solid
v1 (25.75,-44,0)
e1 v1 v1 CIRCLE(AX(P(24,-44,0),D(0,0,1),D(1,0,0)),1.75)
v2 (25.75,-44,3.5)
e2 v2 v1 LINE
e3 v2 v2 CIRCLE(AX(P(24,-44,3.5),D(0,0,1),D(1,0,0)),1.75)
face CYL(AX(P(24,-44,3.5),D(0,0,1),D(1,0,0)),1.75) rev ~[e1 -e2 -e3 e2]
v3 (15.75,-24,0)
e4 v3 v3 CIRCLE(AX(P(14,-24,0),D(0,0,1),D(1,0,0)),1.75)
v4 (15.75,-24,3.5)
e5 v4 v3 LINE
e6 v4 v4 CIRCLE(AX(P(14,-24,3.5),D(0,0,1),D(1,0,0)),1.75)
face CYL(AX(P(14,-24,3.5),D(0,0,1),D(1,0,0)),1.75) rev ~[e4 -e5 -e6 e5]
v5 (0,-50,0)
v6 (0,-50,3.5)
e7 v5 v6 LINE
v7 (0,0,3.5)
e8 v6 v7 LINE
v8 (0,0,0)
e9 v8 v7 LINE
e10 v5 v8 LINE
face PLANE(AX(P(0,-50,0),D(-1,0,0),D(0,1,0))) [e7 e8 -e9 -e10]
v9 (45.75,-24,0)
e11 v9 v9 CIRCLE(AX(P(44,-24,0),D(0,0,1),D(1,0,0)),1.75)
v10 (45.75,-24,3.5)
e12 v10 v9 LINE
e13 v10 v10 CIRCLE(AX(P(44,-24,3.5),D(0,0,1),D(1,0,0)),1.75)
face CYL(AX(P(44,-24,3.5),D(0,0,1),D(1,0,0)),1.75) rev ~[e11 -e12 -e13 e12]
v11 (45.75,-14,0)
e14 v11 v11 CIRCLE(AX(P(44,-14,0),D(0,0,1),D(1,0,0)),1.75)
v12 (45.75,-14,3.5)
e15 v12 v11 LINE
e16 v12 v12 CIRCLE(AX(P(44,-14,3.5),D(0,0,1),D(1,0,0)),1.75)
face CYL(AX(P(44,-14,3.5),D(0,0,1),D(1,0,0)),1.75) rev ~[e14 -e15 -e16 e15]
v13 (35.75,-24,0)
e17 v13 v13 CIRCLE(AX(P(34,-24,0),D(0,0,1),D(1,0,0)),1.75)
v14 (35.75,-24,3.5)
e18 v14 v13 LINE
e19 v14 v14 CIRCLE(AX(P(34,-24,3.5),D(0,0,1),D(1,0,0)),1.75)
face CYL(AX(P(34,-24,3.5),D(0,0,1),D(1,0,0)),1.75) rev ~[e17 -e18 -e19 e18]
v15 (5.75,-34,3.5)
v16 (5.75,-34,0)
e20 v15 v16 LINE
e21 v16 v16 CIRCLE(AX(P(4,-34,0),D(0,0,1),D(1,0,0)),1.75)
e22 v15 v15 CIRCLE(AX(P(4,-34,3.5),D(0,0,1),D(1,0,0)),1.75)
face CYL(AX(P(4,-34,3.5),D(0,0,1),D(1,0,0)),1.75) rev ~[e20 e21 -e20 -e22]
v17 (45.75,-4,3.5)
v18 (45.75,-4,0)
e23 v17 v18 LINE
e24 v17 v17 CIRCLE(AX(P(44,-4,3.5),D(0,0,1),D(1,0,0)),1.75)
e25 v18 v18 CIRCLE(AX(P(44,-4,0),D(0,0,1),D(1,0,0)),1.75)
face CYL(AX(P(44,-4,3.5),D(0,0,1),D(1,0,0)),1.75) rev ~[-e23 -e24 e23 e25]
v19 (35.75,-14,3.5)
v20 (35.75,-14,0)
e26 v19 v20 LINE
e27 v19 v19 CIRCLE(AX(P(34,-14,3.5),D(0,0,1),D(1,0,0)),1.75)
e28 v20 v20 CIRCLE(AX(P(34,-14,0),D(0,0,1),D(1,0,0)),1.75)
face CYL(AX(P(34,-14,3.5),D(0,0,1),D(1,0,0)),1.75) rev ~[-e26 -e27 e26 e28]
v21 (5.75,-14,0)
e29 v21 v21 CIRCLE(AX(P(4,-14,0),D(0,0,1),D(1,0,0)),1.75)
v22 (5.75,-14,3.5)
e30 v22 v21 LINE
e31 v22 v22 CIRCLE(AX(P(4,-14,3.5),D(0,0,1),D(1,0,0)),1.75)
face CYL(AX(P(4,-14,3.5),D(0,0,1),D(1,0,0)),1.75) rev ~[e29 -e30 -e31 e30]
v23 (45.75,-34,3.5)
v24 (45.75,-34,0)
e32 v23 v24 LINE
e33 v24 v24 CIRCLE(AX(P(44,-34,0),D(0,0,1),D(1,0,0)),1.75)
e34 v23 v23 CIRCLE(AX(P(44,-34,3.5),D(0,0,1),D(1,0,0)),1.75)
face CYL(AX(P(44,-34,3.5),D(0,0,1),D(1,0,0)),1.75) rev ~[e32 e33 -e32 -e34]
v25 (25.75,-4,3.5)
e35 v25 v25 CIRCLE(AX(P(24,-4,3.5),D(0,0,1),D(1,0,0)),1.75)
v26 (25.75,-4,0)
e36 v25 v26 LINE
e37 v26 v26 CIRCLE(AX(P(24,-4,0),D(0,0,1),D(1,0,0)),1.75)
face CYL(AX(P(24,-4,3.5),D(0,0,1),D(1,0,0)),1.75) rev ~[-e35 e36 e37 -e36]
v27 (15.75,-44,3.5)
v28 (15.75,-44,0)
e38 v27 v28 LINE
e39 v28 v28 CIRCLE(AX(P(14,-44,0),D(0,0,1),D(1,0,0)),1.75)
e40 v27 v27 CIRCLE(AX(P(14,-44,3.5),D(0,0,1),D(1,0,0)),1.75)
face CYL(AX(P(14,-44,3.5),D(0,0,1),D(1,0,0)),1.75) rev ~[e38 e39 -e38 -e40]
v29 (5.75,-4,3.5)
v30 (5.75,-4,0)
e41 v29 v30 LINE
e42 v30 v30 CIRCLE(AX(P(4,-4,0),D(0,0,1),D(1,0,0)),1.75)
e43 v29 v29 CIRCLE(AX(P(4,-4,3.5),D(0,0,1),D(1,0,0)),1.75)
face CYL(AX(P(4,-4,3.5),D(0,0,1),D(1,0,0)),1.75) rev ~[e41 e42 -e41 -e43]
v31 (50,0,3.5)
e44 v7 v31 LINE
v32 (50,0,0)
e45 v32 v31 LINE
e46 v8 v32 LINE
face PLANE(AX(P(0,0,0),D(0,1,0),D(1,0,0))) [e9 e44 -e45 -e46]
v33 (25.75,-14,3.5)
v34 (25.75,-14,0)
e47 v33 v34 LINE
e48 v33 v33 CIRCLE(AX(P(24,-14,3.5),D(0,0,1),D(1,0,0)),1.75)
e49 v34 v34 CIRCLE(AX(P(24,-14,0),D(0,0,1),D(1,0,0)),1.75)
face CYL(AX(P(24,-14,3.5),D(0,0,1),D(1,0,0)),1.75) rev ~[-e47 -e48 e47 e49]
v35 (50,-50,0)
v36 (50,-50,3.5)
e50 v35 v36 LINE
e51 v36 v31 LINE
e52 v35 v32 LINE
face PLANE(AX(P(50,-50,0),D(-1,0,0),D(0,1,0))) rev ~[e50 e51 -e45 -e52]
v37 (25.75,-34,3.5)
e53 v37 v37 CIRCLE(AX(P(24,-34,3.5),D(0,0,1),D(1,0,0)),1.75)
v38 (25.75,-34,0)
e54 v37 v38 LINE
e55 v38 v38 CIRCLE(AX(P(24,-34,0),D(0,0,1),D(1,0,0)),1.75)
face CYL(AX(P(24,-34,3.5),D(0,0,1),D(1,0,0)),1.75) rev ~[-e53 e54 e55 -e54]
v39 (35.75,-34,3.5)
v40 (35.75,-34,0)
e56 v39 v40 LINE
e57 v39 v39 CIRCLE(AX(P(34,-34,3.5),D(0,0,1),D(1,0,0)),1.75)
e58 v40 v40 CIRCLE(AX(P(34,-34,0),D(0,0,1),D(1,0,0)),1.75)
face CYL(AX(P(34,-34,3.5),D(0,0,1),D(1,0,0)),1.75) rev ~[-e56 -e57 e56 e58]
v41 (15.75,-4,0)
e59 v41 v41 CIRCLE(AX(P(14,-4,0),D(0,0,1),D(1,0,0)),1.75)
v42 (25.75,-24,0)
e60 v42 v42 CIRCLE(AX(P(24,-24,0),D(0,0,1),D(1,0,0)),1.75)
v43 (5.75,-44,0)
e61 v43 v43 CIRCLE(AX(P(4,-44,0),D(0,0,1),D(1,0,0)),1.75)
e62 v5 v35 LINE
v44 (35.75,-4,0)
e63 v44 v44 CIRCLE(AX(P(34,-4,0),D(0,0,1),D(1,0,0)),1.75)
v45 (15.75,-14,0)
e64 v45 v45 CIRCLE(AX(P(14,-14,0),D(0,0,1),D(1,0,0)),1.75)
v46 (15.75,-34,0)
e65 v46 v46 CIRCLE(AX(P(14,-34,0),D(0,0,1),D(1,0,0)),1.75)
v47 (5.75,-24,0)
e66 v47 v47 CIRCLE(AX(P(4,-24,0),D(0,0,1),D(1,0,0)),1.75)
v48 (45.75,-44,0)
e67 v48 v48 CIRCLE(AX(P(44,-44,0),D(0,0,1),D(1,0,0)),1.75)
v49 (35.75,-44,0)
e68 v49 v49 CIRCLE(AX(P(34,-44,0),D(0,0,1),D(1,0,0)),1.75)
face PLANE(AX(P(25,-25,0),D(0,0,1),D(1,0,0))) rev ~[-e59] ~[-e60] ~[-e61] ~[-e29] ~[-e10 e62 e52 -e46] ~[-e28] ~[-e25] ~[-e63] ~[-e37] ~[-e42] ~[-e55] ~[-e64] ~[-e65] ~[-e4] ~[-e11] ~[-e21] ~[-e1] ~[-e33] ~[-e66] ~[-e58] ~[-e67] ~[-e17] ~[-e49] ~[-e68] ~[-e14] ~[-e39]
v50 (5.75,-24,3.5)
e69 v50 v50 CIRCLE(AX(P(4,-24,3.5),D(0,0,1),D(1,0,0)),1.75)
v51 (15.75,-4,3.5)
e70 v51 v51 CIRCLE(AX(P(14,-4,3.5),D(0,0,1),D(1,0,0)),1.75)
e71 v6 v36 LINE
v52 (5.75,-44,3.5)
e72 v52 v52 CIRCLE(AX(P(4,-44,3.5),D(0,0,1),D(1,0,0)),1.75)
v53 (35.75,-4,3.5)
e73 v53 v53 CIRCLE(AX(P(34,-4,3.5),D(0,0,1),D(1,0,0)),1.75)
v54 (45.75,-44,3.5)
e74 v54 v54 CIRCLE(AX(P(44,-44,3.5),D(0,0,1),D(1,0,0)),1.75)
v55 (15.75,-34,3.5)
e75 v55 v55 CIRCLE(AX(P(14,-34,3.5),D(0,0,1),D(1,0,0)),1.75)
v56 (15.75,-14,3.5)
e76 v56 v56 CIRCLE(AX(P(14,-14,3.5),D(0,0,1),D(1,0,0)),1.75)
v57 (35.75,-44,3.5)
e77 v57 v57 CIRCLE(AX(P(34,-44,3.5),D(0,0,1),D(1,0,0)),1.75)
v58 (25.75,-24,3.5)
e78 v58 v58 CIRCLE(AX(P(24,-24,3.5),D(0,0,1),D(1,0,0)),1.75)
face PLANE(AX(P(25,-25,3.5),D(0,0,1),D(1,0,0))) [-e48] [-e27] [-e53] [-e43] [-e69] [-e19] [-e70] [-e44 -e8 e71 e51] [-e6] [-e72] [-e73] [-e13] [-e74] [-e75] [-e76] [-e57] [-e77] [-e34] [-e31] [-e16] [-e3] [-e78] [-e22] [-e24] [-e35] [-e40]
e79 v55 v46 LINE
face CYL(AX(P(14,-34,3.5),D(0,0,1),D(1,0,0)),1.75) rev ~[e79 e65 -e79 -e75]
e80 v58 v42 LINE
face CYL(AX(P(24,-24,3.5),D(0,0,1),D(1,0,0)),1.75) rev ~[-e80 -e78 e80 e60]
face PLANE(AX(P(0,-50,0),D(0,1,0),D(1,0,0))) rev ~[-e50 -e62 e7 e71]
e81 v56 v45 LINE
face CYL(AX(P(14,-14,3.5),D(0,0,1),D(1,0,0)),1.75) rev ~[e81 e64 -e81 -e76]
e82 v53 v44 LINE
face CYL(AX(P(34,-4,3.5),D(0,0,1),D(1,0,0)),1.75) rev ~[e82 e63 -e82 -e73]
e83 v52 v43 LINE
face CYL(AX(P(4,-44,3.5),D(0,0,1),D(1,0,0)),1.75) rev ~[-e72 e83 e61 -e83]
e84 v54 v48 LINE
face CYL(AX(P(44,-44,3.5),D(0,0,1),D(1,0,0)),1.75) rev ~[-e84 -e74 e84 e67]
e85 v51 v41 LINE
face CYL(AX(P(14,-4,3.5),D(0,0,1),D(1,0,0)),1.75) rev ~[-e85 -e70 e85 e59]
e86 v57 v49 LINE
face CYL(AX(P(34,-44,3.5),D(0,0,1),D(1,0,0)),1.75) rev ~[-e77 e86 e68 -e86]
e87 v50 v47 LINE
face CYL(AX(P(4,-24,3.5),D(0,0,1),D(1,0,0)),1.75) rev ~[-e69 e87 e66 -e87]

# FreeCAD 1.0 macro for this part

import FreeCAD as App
import Part
import Sketcher

V = App.Vector


def add_polygon(sketch, points):
    """Adds a closed chain of lines whose ends are joined by coincident constraints."""
    first, n = sketch.GeometryCount, len(points)
    for a, b in zip(points, points[1:] + points[:1]):
        sketch.addGeometry(Part.LineSegment(App.Vector(*a, 0), App.Vector(*b, 0)), False)
    for i in range(n):
        sketch.addConstraint(Sketcher.Constraint("Coincident", first + i, 2, first + (i + 1) % n, 1))

doc = App.newDocument("Part")
body = doc.addObject("PartDesign::Body", "Body")

# Sketch on XY plane
sketch1 = doc.addObject("Sketcher::SketchObject", "Sketch")
body.addObject(sketch1)
sketch1.AttachmentSupport = (doc.XY_Plane, [""])
sketch1.MapMode = "FlatFace"
add_polygon(sketch1, [(0, 0), (0, -50), (50, -50), (50, 0)])  # lines 0-3
sketch1.addConstraint(Sketcher.Constraint("Vertical", 0))
sketch1.addConstraint(Sketcher.Constraint("Horizontal", 1))
sketch1.addConstraint(Sketcher.Constraint("Vertical", 2))
sketch1.addConstraint(Sketcher.Constraint("Horizontal", 3))
sketch1.addConstraint(Sketcher.Constraint("Coincident", 3, 2, -1, 1))
sketch1.addConstraint(Sketcher.Constraint("Equal", 3, 0))
sketch1.addConstraint(Sketcher.Constraint("DistanceX", 1, 1, 1, 2, 50.0))
pad1 = doc.addObject("PartDesign::Pad", "Pad")
body.addObject(pad1)
pad1.Profile = sketch1
pad1.Length = 3.5

# Sketch on XY plane
sketch2 = doc.addObject("Sketcher::SketchObject", "Sketch001")
body.addObject(sketch2)
sketch2.AttachmentSupport = (doc.XY_Plane, [""])
sketch2.MapMode = "FlatFace"
sketch2.AttachmentOffset = App.Placement(V(0, 0, 3.5), App.Rotation())
sketch2.addGeometry(Part.Circle(V(4, -4, 0), V(0, 0, 1), 1.8), False)
sketch2.addGeometry(Part.Circle(V(14, -4, 0), V(0, 0, 1), 1.8), False)
sketch2.addGeometry(Part.Circle(V(24, -4, 0), V(0, 0, 1), 1.8), False)
sketch2.addGeometry(Part.Circle(V(34, -4, 0), V(0, 0, 1), 1.8), False)
sketch2.addGeometry(Part.Circle(V(44, -4, 0), V(0, 0, 1), 1.8), False)
sketch2.addGeometry(Part.Circle(V(44, -14, 0), V(0, 0, 1), 1.8), False)
sketch2.addGeometry(Part.Circle(V(34, -14, 0), V(0, 0, 1), 1.8), False)
sketch2.addGeometry(Part.Circle(V(24, -14, 0), V(0, 0, 1), 1.8), False)
sketch2.addGeometry(Part.Circle(V(14, -14, 0), V(0, 0, 1), 1.8), False)
sketch2.addGeometry(Part.Circle(V(4, -14, 0), V(0, 0, 1), 1.8), False)
sketch2.addGeometry(Part.Circle(V(4, -24, 0), V(0, 0, 1), 1.8), False)
sketch2.addGeometry(Part.Circle(V(14, -24, 0), V(0, 0, 1), 1.8), False)
sketch2.addGeometry(Part.Circle(V(24, -24, 0), V(0, 0, 1), 1.8), False)
sketch2.addGeometry(Part.Circle(V(34, -24, 0), V(0, 0, 1), 1.8), False)
sketch2.addGeometry(Part.Circle(V(44, -24, 0), V(0, 0, 1), 1.8), False)
sketch2.addGeometry(Part.Circle(V(4, -34, 0), V(0, 0, 1), 1.8), False)
sketch2.addGeometry(Part.Circle(V(14, -34, 0), V(0, 0, 1), 1.8), False)
sketch2.addGeometry(Part.Circle(V(24, -34, 0), V(0, 0, 1), 1.8), False)
sketch2.addGeometry(Part.Circle(V(34, -34, 0), V(0, 0, 1), 1.8), False)
sketch2.addGeometry(Part.Circle(V(44, -34, 0), V(0, 0, 1), 1.8), False)
sketch2.addGeometry(Part.Circle(V(4, -44, 0), V(0, 0, 1), 1.8), False)
sketch2.addGeometry(Part.Circle(V(14, -44, 0), V(0, 0, 1), 1.8), False)
sketch2.addGeometry(Part.Circle(V(24, -44, 0), V(0, 0, 1), 1.8), False)
sketch2.addGeometry(Part.Circle(V(34, -44, 0), V(0, 0, 1), 1.8), False)
sketch2.addGeometry(Part.Circle(V(44, -44, 0), V(0, 0, 1), 1.8), False)
sketch2.addConstraint(Sketcher.Constraint("Equal", 0, 1))
sketch2.addConstraint(Sketcher.Constraint("Equal", 1, 2))
sketch2.addConstraint(Sketcher.Constraint("Equal", 2, 3))
sketch2.addConstraint(Sketcher.Constraint("Equal", 3, 4))
sketch2.addConstraint(Sketcher.Constraint("Equal", 4, 5))
sketch2.addConstraint(Sketcher.Constraint("Equal", 5, 6))
sketch2.addConstraint(Sketcher.Constraint("Equal", 6, 7))
sketch2.addConstraint(Sketcher.Constraint("Equal", 7, 8))
sketch2.addConstraint(Sketcher.Constraint("Equal", 8, 9))
sketch2.addConstraint(Sketcher.Constraint("Equal", 9, 10))
sketch2.addConstraint(Sketcher.Constraint("Equal", 10, 11))
sketch2.addConstraint(Sketcher.Constraint("Equal", 11, 12))
sketch2.addConstraint(Sketcher.Constraint("Equal", 12, 13))
sketch2.addConstraint(Sketcher.Constraint("Equal", 13, 14))
sketch2.addConstraint(Sketcher.Constraint("Equal", 14, 15))
sketch2.addConstraint(Sketcher.Constraint("Equal", 15, 16))
sketch2.addConstraint(Sketcher.Constraint("Equal", 16, 17))
sketch2.addConstraint(Sketcher.Constraint("Equal", 17, 18))
sketch2.addConstraint(Sketcher.Constraint("Equal", 18, 19))
sketch2.addConstraint(Sketcher.Constraint("Equal", 19, 20))
sketch2.addConstraint(Sketcher.Constraint("Equal", 20, 21))
sketch2.addConstraint(Sketcher.Constraint("Equal", 21, 22))
sketch2.addConstraint(Sketcher.Constraint("Equal", 22, 23))
sketch2.addConstraint(Sketcher.Constraint("Equal", 23, 24))
sketch2.addConstraint(Sketcher.Constraint("Horizontal", 0, 3, 1, 3))
sketch2.addConstraint(Sketcher.Constraint("Horizontal", 1, 3, 2, 3))
sketch2.addConstraint(Sketcher.Constraint("Horizontal", 2, 3, 3, 3))
sketch2.addConstraint(Sketcher.Constraint("Horizontal", 3, 3, 4, 3))
sketch2.addConstraint(Sketcher.Constraint("Horizontal", 5, 3, 6, 3))
sketch2.addConstraint(Sketcher.Constraint("Horizontal", 6, 3, 7, 3))
sketch2.addConstraint(Sketcher.Constraint("Horizontal", 7, 3, 8, 3))
sketch2.addConstraint(Sketcher.Constraint("Horizontal", 8, 3, 9, 3))
sketch2.addConstraint(Sketcher.Constraint("Horizontal", 10, 3, 11, 3))
sketch2.addConstraint(Sketcher.Constraint("Horizontal", 11, 3, 12, 3))
sketch2.addConstraint(Sketcher.Constraint("Horizontal", 12, 3, 13, 3))
sketch2.addConstraint(Sketcher.Constraint("Horizontal", 13, 3, 14, 3))
sketch2.addConstraint(Sketcher.Constraint("Horizontal", 15, 3, 16, 3))
sketch2.addConstraint(Sketcher.Constraint("Horizontal", 16, 3, 17, 3))
sketch2.addConstraint(Sketcher.Constraint("Horizontal", 17, 3, 18, 3))
sketch2.addConstraint(Sketcher.Constraint("Horizontal", 18, 3, 19, 3))
sketch2.addConstraint(Sketcher.Constraint("Horizontal", 20, 3, 21, 3))
sketch2.addConstraint(Sketcher.Constraint("Horizontal", 21, 3, 22, 3))
sketch2.addConstraint(Sketcher.Constraint("Horizontal", 22, 3, 23, 3))
sketch2.addConstraint(Sketcher.Constraint("Horizontal", 23, 3, 24, 3))
sketch2.addConstraint(Sketcher.Constraint("Vertical", 4, 3, 5, 3))
sketch2.addConstraint(Sketcher.Constraint("Vertical", 3, 3, 6, 3))
sketch2.addConstraint(Sketcher.Constraint("Vertical", 2, 3, 7, 3))
sketch2.addConstraint(Sketcher.Constraint("Vertical", 1, 3, 8, 3))
sketch2.addConstraint(Sketcher.Constraint("Vertical", 0, 3, 9, 3))
sketch2.addConstraint(Sketcher.Constraint("Vertical", 9, 3, 10, 3))
sketch2.addConstraint(Sketcher.Constraint("Vertical", 8, 3, 11, 3))
sketch2.addConstraint(Sketcher.Constraint("Vertical", 7, 3, 12, 3))
sketch2.addConstraint(Sketcher.Constraint("Vertical", 6, 3, 13, 3))
sketch2.addConstraint(Sketcher.Constraint("Vertical", 5, 3, 14, 3))
sketch2.addConstraint(Sketcher.Constraint("Vertical", 10, 3, 15, 3))
sketch2.addConstraint(Sketcher.Constraint("Vertical", 11, 3, 16, 3))
sketch2.addConstraint(Sketcher.Constraint("Vertical", 12, 3, 17, 3))
sketch2.addConstraint(Sketcher.Constraint("Vertical", 13, 3, 18, 3))
sketch2.addConstraint(Sketcher.Constraint("Vertical", 14, 3, 19, 3))
sketch2.addConstraint(Sketcher.Constraint("Vertical", 15, 3, 20, 3))
sketch2.addConstraint(Sketcher.Constraint("Vertical", 16, 3, 21, 3))
sketch2.addConstraint(Sketcher.Constraint("Vertical", 17, 3, 22, 3))
sketch2.addConstraint(Sketcher.Constraint("Vertical", 18, 3, 23, 3))
sketch2.addConstraint(Sketcher.Constraint("Vertical", 19, 3, 24, 3))
sketch2.addConstraint(Sketcher.Constraint("Diameter", 0, 3.5))
sketch2.addConstraint(Sketcher.Constraint("DistanceX", -1, 1, 0, 3, 4.0))
sketch2.addConstraint(Sketcher.Constraint("DistanceY", 0, 3, -1, 1, 4.0))
sketch2.addConstraint(Sketcher.Constraint("DistanceX", -1, 1, 1, 3, 14.0))
sketch2.addConstraint(Sketcher.Constraint("DistanceX", -1, 1, 2, 3, 24.0))
sketch2.addConstraint(Sketcher.Constraint("DistanceX", -1, 1, 3, 3, 34.0))
sketch2.addConstraint(Sketcher.Constraint("DistanceX", -1, 1, 4, 3, 44.0))
sketch2.addConstraint(Sketcher.Constraint("DistanceY", 5, 3, -1, 1, 14.0))
sketch2.addConstraint(Sketcher.Constraint("DistanceY", 10, 3, -1, 1, 24.0))
sketch2.addConstraint(Sketcher.Constraint("DistanceY", 15, 3, -1, 1, 34.0))
sketch2.addConstraint(Sketcher.Constraint("DistanceY", 20, 3, -1, 1, 44.0))
pocket1 = doc.addObject("PartDesign::Pocket", "Pocket")
body.addObject(pocket1)
pocket1.Profile = sketch2
pocket1.Type = "ThroughAll"

doc.recompute()
